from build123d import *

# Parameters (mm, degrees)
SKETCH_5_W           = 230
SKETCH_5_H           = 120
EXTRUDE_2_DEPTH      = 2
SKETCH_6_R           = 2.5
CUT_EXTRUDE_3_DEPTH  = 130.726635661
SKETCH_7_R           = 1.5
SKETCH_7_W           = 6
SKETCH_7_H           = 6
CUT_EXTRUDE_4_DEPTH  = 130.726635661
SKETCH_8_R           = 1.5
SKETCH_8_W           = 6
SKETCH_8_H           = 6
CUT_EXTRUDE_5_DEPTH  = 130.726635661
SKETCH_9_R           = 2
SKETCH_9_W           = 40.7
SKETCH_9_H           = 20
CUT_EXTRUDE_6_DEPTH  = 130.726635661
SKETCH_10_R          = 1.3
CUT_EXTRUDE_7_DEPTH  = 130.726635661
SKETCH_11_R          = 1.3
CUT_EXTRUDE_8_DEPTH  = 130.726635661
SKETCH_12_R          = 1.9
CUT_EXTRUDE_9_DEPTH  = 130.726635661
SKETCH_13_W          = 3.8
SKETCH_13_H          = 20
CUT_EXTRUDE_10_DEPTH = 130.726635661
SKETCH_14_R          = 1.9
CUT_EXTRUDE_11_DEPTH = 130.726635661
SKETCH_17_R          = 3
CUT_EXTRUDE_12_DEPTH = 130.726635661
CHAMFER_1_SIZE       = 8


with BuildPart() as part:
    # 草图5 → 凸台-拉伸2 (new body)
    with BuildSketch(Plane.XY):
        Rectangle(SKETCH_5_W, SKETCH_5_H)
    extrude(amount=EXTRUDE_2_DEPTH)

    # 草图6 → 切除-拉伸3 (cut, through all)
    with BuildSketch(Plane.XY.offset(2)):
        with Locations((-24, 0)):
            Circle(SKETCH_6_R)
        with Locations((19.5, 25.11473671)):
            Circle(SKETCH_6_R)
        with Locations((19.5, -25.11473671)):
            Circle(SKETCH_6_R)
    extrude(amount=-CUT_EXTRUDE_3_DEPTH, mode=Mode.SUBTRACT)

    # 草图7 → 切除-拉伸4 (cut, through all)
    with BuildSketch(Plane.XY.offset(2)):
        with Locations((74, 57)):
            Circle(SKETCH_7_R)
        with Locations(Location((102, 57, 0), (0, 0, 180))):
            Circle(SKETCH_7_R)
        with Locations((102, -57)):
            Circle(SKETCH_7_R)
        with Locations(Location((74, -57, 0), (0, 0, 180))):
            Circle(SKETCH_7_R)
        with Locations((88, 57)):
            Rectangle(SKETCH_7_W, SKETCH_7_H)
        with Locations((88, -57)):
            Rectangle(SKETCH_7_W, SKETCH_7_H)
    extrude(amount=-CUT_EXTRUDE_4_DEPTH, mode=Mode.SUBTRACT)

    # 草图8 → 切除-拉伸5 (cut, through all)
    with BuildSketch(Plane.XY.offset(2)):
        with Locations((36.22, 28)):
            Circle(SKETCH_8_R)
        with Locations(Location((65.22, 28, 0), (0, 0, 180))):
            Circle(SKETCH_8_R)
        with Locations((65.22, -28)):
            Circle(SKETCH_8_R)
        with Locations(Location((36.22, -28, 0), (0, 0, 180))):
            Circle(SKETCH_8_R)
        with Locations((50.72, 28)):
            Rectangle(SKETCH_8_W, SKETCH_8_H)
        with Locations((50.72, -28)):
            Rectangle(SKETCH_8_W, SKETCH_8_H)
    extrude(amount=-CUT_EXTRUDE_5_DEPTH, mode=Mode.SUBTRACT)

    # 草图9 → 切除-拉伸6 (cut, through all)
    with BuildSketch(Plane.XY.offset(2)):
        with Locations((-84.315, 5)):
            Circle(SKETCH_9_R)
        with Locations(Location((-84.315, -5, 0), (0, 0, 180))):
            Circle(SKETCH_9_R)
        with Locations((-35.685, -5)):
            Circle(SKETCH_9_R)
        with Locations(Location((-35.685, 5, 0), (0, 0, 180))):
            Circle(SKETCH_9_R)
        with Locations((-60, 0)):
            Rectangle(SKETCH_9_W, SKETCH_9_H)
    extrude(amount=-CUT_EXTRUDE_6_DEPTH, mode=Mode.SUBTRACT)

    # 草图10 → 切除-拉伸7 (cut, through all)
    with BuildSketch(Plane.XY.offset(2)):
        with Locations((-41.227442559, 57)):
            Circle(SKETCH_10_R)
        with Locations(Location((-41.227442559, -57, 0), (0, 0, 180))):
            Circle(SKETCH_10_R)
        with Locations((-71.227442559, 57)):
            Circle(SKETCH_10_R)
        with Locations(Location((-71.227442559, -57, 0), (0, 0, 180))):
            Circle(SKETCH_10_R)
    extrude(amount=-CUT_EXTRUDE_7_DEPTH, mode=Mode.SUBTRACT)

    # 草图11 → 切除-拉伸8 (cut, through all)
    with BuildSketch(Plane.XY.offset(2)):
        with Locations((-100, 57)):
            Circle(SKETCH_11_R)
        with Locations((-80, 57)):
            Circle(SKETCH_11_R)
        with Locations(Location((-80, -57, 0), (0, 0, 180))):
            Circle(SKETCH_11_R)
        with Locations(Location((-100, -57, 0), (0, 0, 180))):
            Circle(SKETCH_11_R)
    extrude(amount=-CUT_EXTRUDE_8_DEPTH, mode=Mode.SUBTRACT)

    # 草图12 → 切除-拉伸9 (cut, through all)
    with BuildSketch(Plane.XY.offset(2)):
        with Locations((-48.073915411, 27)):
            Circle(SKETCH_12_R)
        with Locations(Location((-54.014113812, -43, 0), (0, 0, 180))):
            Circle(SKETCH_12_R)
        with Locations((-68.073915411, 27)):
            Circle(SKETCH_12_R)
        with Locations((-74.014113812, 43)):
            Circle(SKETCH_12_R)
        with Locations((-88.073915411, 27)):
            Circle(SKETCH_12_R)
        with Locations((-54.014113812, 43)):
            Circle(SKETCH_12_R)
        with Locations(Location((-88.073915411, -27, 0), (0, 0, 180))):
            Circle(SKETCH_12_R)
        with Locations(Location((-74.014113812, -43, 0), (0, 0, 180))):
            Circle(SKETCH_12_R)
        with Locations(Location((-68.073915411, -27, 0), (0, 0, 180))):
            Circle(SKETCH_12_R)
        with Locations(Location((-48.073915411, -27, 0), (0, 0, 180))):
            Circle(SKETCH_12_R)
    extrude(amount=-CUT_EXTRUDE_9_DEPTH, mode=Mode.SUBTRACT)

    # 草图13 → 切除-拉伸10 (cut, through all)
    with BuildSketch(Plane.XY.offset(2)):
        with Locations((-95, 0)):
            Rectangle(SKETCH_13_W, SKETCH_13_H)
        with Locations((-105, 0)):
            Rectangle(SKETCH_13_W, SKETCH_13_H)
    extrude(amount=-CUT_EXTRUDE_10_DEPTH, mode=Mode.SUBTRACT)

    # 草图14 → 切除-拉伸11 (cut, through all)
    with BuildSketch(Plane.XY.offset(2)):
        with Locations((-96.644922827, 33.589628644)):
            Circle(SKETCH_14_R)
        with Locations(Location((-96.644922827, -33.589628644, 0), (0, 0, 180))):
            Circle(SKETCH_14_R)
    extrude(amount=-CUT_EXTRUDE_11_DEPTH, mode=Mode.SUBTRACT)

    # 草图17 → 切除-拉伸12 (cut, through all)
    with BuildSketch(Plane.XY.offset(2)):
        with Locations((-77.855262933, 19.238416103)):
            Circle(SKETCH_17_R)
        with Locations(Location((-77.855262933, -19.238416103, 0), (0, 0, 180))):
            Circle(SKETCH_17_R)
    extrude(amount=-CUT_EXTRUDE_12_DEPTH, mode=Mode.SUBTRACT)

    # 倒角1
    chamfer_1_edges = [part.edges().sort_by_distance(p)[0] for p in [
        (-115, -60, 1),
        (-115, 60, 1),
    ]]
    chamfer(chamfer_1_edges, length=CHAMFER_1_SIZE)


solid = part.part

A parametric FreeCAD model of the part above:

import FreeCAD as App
import Part
import Sketcher

V = App.Vector
Q = App.Units.Quantity


def edges_at(feature, points):
    """Names of the edges that pass closest to the given points."""
    edges = feature.Shape.Edges
    near = lambda p: min(range(len(edges)), key=lambda i: edges[i].distToShape(Part.Vertex(*p))[0])
    return sorted({f"Edge{near(p) + 1}" for p in points})


def add_polygon(sketch, points):
    """Adds a closed chain of lines whose ends are joined by coincident constraints."""
    first, n = sketch.GeometryCount, len(points)
    for a, b in zip(points, points[1:] + points[:1]):
        sketch.addGeometry(Part.LineSegment(App.Vector(*a, 0), App.Vector(*b, 0)), False)
    for i in range(n):
        sketch.addConstraint(Sketcher.Constraint("Coincident", first + i, 2, first + (i + 1) % n, 1))

doc = App.newDocument("Part")
params = doc.addObject("Spreadsheet::Sheet", "Params")
for row, (alias, value) in enumerate([
    ("sketch1_width", "230 mm"),
    ("sketch1_height", "120 mm"),
    ("pad1_length", "2 mm"),
    ("sketch2_diameter", "5 mm"),
    ("sketch3_diameter", "3 mm"),
    ("sketch3_width", "6 mm"),
    ("sketch4_diameter", "3 mm"),
    ("sketch4_width", "6 mm"),
    ("sketch5_diameter", "4 mm"),
    ("sketch5_height", "20 mm"),
    ("sketch5_width", "40.7 mm"),
    ("sketch6_diameter", "2.6 mm"),
    ("sketch7_diameter", "2.6 mm"),
    ("sketch8_diameter", "3.8 mm"),
    ("sketch9_height", "20 mm"),
    ("sketch9_width", "3.8 mm"),
    ("sketch10_diameter", "3.8 mm"),
    ("sketch11_diameter", "6 mm"),
    ("chamfer_size", "8 mm"),
], start=1):
    params.set(f"A{row}", alias)
    params.set(f"B{row}", "=" + value)
    params.setAlias(f"B{row}", alias)

body = doc.addObject("PartDesign::Body", "Body")

sketch1 = body.newObject("Sketcher::SketchObject", "Sketch")
sketch1.AttachmentSupport = (doc.getObject("XY_Plane"), [""])
sketch1.MapMode = "FlatFace"
add_polygon(sketch1, [(-115, 60), (-115, -60), (115, -60), (115, 60)])
sketch1.addConstraint(Sketcher.Constraint("Vertical", 0))
sketch1.addConstraint(Sketcher.Constraint("Horizontal", 1))
sketch1.addConstraint(Sketcher.Constraint("Vertical", 2))
sketch1.addConstraint(Sketcher.Constraint("Horizontal", 3))
sketch1.addConstraint(Sketcher.Constraint("Symmetric", 0, 2, 2, 2, -1, 1))
sketch1.addConstraint(Sketcher.Constraint("DistanceX", 1, 1, 1, 2, Q("230 mm")))
sketch1.addConstraint(Sketcher.Constraint("DistanceY", 0, 2, 0, 1, Q("120 mm")))
sketch1.setExpression("Constraints[9]", "Params.sketch1_width")
sketch1.setExpression("Constraints[10]", "Params.sketch1_height")
pad1 = body.newObject("PartDesign::Pad", "Pad")
pad1.Profile = sketch1
pad1.setExpression("Length", "Params.pad1_length")

sketch2 = body.newObject("Sketcher::SketchObject", "Sketch001")
sketch2.AttachmentSupport = (doc.getObject("XY_Plane"), [""])
sketch2.MapMode = "FlatFace"
sketch2.AttachmentOffset = App.Placement(V(0, 0, 2), App.Rotation())
sketch2.addGeometry(Part.Circle(V(-24, 0, 0), V(0, 0, 1), 2.5), False)
sketch2.addGeometry(Part.Circle(V(19.5, 25.1, 0), V(0, 0, 1), 2.5), False)
sketch2.addGeometry(Part.Circle(V(19.5, -25.1, 0), V(0, 0, 1), 2.5), False)
sketch2.addConstraint(Sketcher.Constraint("Equal", 0, 1))
sketch2.addConstraint(Sketcher.Constraint("Equal", 1, 2))
sketch2.addConstraint(Sketcher.Constraint("Symmetric", 1, 3, 2, 3, -1))
sketch2.addConstraint(Sketcher.Constraint("PointOnObject", 0, 3, -1))
sketch2.addConstraint(Sketcher.Constraint("Diameter", 0, Q("5 mm")))
sketch2.addConstraint(Sketcher.Constraint("DistanceX", 0, 3, -1, 1, Q("24 mm")))
sketch2.addConstraint(Sketcher.Constraint("DistanceX", -1, 1, 1, 3, Q("19.5 mm")))
sketch2.addConstraint(Sketcher.Constraint("DistanceY", -1, 1, 1, 3, Q("25.114737 mm")))
sketch2.setExpression("Constraints[4]", "Params.sketch2_diameter")
pocket1 = body.newObject("PartDesign::Pocket", "Pocket")
pocket1.Profile = sketch2
pocket1.Type = "ThroughAll"

sketch3 = body.newObject("Sketcher::SketchObject", "Sketch002")
sketch3.AttachmentSupport = (doc.getObject("XY_Plane"), [""])
sketch3.MapMode = "FlatFace"
sketch3.AttachmentOffset = App.Placement(V(0, 0, 2), App.Rotation())
sketch3.addGeometry(Part.Circle(V(74, 57, 0), V(0, 0, 1), 1.5), False)
sketch3.addGeometry(Part.Circle(V(102, 57, 0), V(0, 0, 1), 1.5), False)
sketch3.addGeometry(Part.Circle(V(102, -57, 0), V(0, 0, 1), 1.5), False)
sketch3.addGeometry(Part.Circle(V(74, -57, 0), V(0, 0, 1), 1.5), False)
add_polygon(sketch3, [(85, 60), (85, 54), (91, 54), (91, 60)])
add_polygon(sketch3, [(85, -54), (85, -60), (91, -60), (91, -54)])
sketch3.addConstraint(Sketcher.Constraint("Vertical", 4))
sketch3.addConstraint(Sketcher.Constraint("Horizontal", 5))
sketch3.addConstraint(Sketcher.Constraint("Vertical", 6))
sketch3.addConstraint(Sketcher.Constraint("Horizontal", 7))
sketch3.addConstraint(Sketcher.Constraint("Vertical", 8))
sketch3.addConstraint(Sketcher.Constraint("Horizontal", 9))
sketch3.addConstraint(Sketcher.Constraint("Vertical", 10))
sketch3.addConstraint(Sketcher.Constraint("Horizontal", 11))
sketch3.addConstraint(Sketcher.Constraint("Equal", 0, 1))
sketch3.addConstraint(Sketcher.Constraint("Equal", 1, 2))
sketch3.addConstraint(Sketcher.Constraint("Equal", 2, 3))
sketch3.addConstraint(Sketcher.Constraint("Symmetric", 1, 3, 2, 3, -1))
sketch3.addConstraint(Sketcher.Constraint("Symmetric", 0, 3, 3, 3, -1))
sketch3.addConstraint(Sketcher.Constraint("Symmetric", 7, 2, 8, 2, -1))
sketch3.addConstraint(Sketcher.Constraint("Symmetric", 5, 2, 10, 2, -1))
sketch3.addConstraint(Sketcher.Constraint("Horizontal", 0, 3, 1, 3))
sketch3.addConstraint(Sketcher.Constraint("Equal", 11, 4))
sketch3.addConstraint(Sketcher.Constraint("Diameter", 0, Q("3 mm")))
sketch3.addConstraint(Sketcher.Constraint("DistanceX", 5, 1, 5, 2, Q("6 mm")))
sketch3.addConstraint(Sketcher.Constraint("DistanceX", -1, 1, 0, 3, Q("74 mm")))
sketch3.addConstraint(Sketcher.Constraint("DistanceY", -1, 1, 0, 3, Q("57 mm")))
sketch3.addConstraint(Sketcher.Constraint("DistanceX", -1, 1, 1, 3, Q("102 mm")))
sketch3.addConstraint(Sketcher.Constraint("DistanceX", -1, 1, 4, 2, Q("85 mm")))
sketch3.addConstraint(Sketcher.Constraint("DistanceY", -1, 1, 4, 2, Q("54 mm")))
sketch3.setExpression("Constraints[25]", "Params.sketch3_diameter")
sketch3.setExpression("Constraints[26]", "Params.sketch3_width")
pocket2 = body.newObject("PartDesign::Pocket", "Pocket001")
pocket2.Profile = sketch3
pocket2.Type = "ThroughAll"

sketch4 = body.newObject("Sketcher::SketchObject", "Sketch003")
sketch4.AttachmentSupport = (doc.getObject("XY_Plane"), [""])
sketch4.MapMode = "FlatFace"
sketch4.AttachmentOffset = App.Placement(V(0, 0, 2), App.Rotation())
sketch4.addGeometry(Part.Circle(V(36.2, 28, 0), V(0, 0, 1), 1.5), False)
sketch4.addGeometry(Part.Circle(V(65.2, 28, 0), V(0, 0, 1), 1.5), False)
sketch4.addGeometry(Part.Circle(V(65.2, -28, 0), V(0, 0, 1), 1.5), False)
sketch4.addGeometry(Part.Circle(V(36.2, -28, 0), V(0, 0, 1), 1.5), False)
add_polygon(sketch4, [(47.7, 31), (47.7, 25), (53.7, 25), (53.7, 31)])
add_polygon(sketch4, [(47.7, -25), (47.7, -31), (53.7, -31), (53.7, -25)])
sketch4.addConstraint(Sketcher.Constraint("Vertical", 4))
sketch4.addConstraint(Sketcher.Constraint("Horizontal", 5))
sketch4.addConstraint(Sketcher.Constraint("Vertical", 6))
sketch4.addConstraint(Sketcher.Constraint("Horizontal", 7))
sketch4.addConstraint(Sketcher.Constraint("Vertical", 8))
sketch4.addConstraint(Sketcher.Constraint("Horizontal", 9))
sketch4.addConstraint(Sketcher.Constraint("Vertical", 10))
sketch4.addConstraint(Sketcher.Constraint("Horizontal", 11))
sketch4.addConstraint(Sketcher.Constraint("Equal", 0, 1))
sketch4.addConstraint(Sketcher.Constraint("Equal", 1, 2))
sketch4.addConstraint(Sketcher.Constraint("Equal", 2, 3))
sketch4.addConstraint(Sketcher.Constraint("Symmetric", 1, 3, 2, 3, -1))
sketch4.addConstraint(Sketcher.Constraint("Symmetric", 0, 3, 3, 3, -1))
sketch4.addConstraint(Sketcher.Constraint("Symmetric", 7, 2, 8, 2, -1))
sketch4.addConstraint(Sketcher.Constraint("Symmetric", 5, 2, 10, 2, -1))
sketch4.addConstraint(Sketcher.Constraint("Horizontal", 0, 3, 1, 3))
sketch4.addConstraint(Sketcher.Constraint("Equal", 11, 4))
sketch4.addConstraint(Sketcher.Constraint("Diameter", 0, Q("3 mm")))
sketch4.addConstraint(Sketcher.Constraint("DistanceX", 5, 1, 5, 2, Q("6 mm")))
sketch4.addConstraint(Sketcher.Constraint("DistanceY", -1, 1, 0, 3, Q("28 mm")))
sketch4.addConstraint(Sketcher.Constraint("DistanceY", -1, 1, 4, 2, Q("25 mm")))
sketch4.addConstraint(Sketcher.Constraint("DistanceX", 0, 3, 1, 3, Q("29 mm")))
sketch4.addConstraint(Sketcher.Constraint("DistanceX", 0, 3, 4, 2, Q("11.5 mm")))
sketch4.addConstraint(Sketcher.Constraint("DistanceX", -1, 1, 0, 3, Q("36.22 mm")))
sketch4.setExpression("Constraints[25]", "Params.sketch4_diameter")
sketch4.setExpression("Constraints[26]", "Params.sketch4_width")
pocket3 = body.newObject("PartDesign::Pocket", "Pocket002")
pocket3.Profile = sketch4
pocket3.Type = "ThroughAll"

sketch5 = body.newObject("Sketcher::SketchObject", "Sketch004")
sketch5.AttachmentSupport = (doc.getObject("XY_Plane"), [""])
sketch5.MapMode = "FlatFace"
sketch5.AttachmentOffset = App.Placement(V(0, 0, 2), App.Rotation())
sketch5.addGeometry(Part.Circle(V(-84.3, 5, 0), V(0, 0, 1), 2), False)
sketch5.addGeometry(Part.Circle(V(-84.3, -5, 0), V(0, 0, 1), 2), False)
sketch5.addGeometry(Part.Circle(V(-35.7, -5, 0), V(0, 0, 1), 2), False)
sketch5.addGeometry(Part.Circle(V(-35.7, 5, 0), V(0, 0, 1), 2), False)
add_polygon(sketch5, [(-80.3, 10), (-80.3, -10), (-39.6, -10), (-39.6, 10)])
sketch5.addConstraint(Sketcher.Constraint("Vertical", 4))
sketch5.addConstraint(Sketcher.Constraint("Horizontal", 5))
sketch5.addConstraint(Sketcher.Constraint("Vertical", 6))
sketch5.addConstraint(Sketcher.Constraint("Horizontal", 7))
sketch5.addConstraint(Sketcher.Constraint("Equal", 0, 1))
sketch5.addConstraint(Sketcher.Constraint("Equal", 1, 2))
sketch5.addConstraint(Sketcher.Constraint("Equal", 2, 3))
sketch5.addConstraint(Sketcher.Constraint("Symmetric", 0, 3, 1, 3, -1))
sketch5.addConstraint(Sketcher.Constraint("Symmetric", 2, 3, 3, 3, -1))
sketch5.addConstraint(Sketcher.Constraint("Horizontal", 1, 3, 2, 3))
sketch5.addConstraint(Sketcher.Constraint("Diameter", 0, Q("4 mm")))
sketch5.addConstraint(Sketcher.Constraint("DistanceY", 4, 2, 4, 1, Q("20 mm")))
sketch5.addConstraint(Sketcher.Constraint("DistanceX", 5, 1, 5, 2, Q("40.7 mm")))
sketch5.addConstraint(Sketcher.Constraint("DistanceY", -1, 1, 0, 3, Q("5 mm")))
sketch5.addConstraint(Sketcher.Constraint("DistanceY", 4, 2, -1, 1, Q("10 mm")))
sketch5.addConstraint(Sketcher.Constraint("DistanceX", 4, 2, -1, 1, Q("80.35 mm")))
sketch5.addConstraint(Sketcher.Constraint("DistanceX", 1, 3, 2, 3, Q("48.63 mm")))
sketch5.addConstraint(Sketcher.Constraint("DistanceX", 0, 3, -1, 1, Q("84.315 mm")))
sketch5.setExpression("Constraints[14]", "Params.sketch5_diameter")
sketch5.setExpression("Constraints[15]", "Params.sketch5_height")
sketch5.setExpression("Constraints[16]", "Params.sketch5_width")
pocket4 = body.newObject("PartDesign::Pocket", "Pocket003")
pocket4.Profile = sketch5
pocket4.Type = "ThroughAll"

sketch6 = body.newObject("Sketcher::SketchObject", "Sketch005")
sketch6.AttachmentSupport = (doc.getObject("XY_Plane"), [""])
sketch6.MapMode = "FlatFace"
sketch6.AttachmentOffset = App.Placement(V(0, 0, 2), App.Rotation())
sketch6.addGeometry(Part.Circle(V(-41.2, 57, 0), V(0, 0, 1), 1.3), False)
sketch6.addGeometry(Part.Circle(V(-41.2, -57, 0), V(0, 0, 1), 1.3), False)
sketch6.addGeometry(Part.Circle(V(-71.2, 57, 0), V(0, 0, 1), 1.3), False)
sketch6.addGeometry(Part.Circle(V(-71.2, -57, 0), V(0, 0, 1), 1.3), False)
sketch6.addConstraint(Sketcher.Constraint("Equal", 0, 1))
sketch6.addConstraint(Sketcher.Constraint("Equal", 1, 2))
sketch6.addConstraint(Sketcher.Constraint("Equal", 2, 3))
sketch6.addConstraint(Sketcher.Constraint("Symmetric", 0, 3, 1, 3, -1))
sketch6.addConstraint(Sketcher.Constraint("Symmetric", 2, 3, 3, 3, -1))
sketch6.addConstraint(Sketcher.Constraint("Horizontal", 0, 3, 2, 3))
sketch6.addConstraint(Sketcher.Constraint("Diameter", 0, Q("2.6 mm")))
sketch6.addConstraint(Sketcher.Constraint("DistanceY", -1, 1, 0, 3, Q("57 mm")))
sketch6.addConstraint(Sketcher.Constraint("DistanceX", 2, 3, 0, 3, Q("30 mm")))
sketch6.addConstraint(Sketcher.Constraint("DistanceX", 0, 3, -1, 1, Q("41.227443 mm")))
sketch6.setExpression("Constraints[6]", "Params.sketch6_diameter")
pocket5 = body.newObject("PartDesign::Pocket", "Pocket004")
pocket5.Profile = sketch6
pocket5.Type = "ThroughAll"

sketch7 = body.newObject("Sketcher::SketchObject", "Sketch006")
sketch7.AttachmentSupport = (doc.getObject("XY_Plane"), [""])
sketch7.MapMode = "FlatFace"
sketch7.AttachmentOffset = App.Placement(V(0, 0, 2), App.Rotation())
sketch7.addGeometry(Part.Circle(V(-100, 57, 0), V(0, 0, 1), 1.3), False)
sketch7.addGeometry(Part.Circle(V(-80, 57, 0), V(0, 0, 1), 1.3), False)
sketch7.addGeometry(Part.Circle(V(-80, -57, 0), V(0, 0, 1), 1.3), False)
sketch7.addGeometry(Part.Circle(V(-100, -57, 0), V(0, 0, 1), 1.3), False)
sketch7.addConstraint(Sketcher.Constraint("Equal", 0, 1))
sketch7.addConstraint(Sketcher.Constraint("Equal", 1, 2))
sketch7.addConstraint(Sketcher.Constraint("Equal", 2, 3))
sketch7.addConstraint(Sketcher.Constraint("Symmetric", 1, 3, 2, 3, -1))
sketch7.addConstraint(Sketcher.Constraint("Symmetric", 0, 3, 3, 3, -1))
sketch7.addConstraint(Sketcher.Constraint("Horizontal", 0, 3, 1, 3))
sketch7.addConstraint(Sketcher.Constraint("Diameter", 0, Q("2.6 mm")))
sketch7.addConstraint(Sketcher.Constraint("DistanceX", 0, 3, -1, 1, Q("100 mm")))
sketch7.addConstraint(Sketcher.Constraint("DistanceY", -1, 1, 0, 3, Q("57 mm")))
sketch7.addConstraint(Sketcher.Constraint("DistanceX", 1, 3, -1, 1, Q("80 mm")))
sketch7.setExpression("Constraints[6]", "Params.sketch7_diameter")
pocket6 = body.newObject("PartDesign::Pocket", "Pocket005")
pocket6.Profile = sketch7
pocket6.Type = "ThroughAll"

sketch8 = body.newObject("Sketcher::SketchObject", "Sketch007")
sketch8.AttachmentSupport = (doc.getObject("XY_Plane"), [""])
sketch8.MapMode = "FlatFace"
sketch8.AttachmentOffset = App.Placement(V(0, 0, 2), App.Rotation())
sketch8.addGeometry(Part.Circle(V(-48.1, 27, 0), V(0, 0, 1), 1.9), False)
sketch8.addGeometry(Part.Circle(V(-54, -43, 0), V(0, 0, 1), 1.9), False)
sketch8.addGeometry(Part.Circle(V(-68.1, 27, 0), V(0, 0, 1), 1.9), False)
sketch8.addGeometry(Part.Circle(V(-74, 43, 0), V(0, 0, 1), 1.9), False)
sketch8.addGeometry(Part.Circle(V(-88.1, 27, 0), V(0, 0, 1), 1.9), False)
sketch8.addGeometry(Part.Circle(V(-54, 43, 0), V(0, 0, 1), 1.9), False)
sketch8.addGeometry(Part.Circle(V(-88.1, -27, 0), V(0, 0, 1), 1.9), False)
sketch8.addGeometry(Part.Circle(V(-74, -43, 0), V(0, 0, 1), 1.9), False)
sketch8.addGeometry(Part.Circle(V(-68.1, -27, 0), V(0, 0, 1), 1.9), False)
sketch8.addGeometry(Part.Circle(V(-48.1, -27, 0), V(0, 0, 1), 1.9), False)
sketch8.addConstraint(Sketcher.Constraint("Equal", 0, 1))
sketch8.addConstraint(Sketcher.Constraint("Equal", 1, 2))
sketch8.addConstraint(Sketcher.Constraint("Equal", 2, 3))
sketch8.addConstraint(Sketcher.Constraint("Equal", 3, 4))
sketch8.addConstraint(Sketcher.Constraint("Equal", 4, 5))
sketch8.addConstraint(Sketcher.Constraint("Equal", 5, 6))
sketch8.addConstraint(Sketcher.Constraint("Equal", 6, 7))
sketch8.addConstraint(Sketcher.Constraint("Equal", 7, 8))
sketch8.addConstraint(Sketcher.Constraint("Equal", 8, 9))
sketch8.addConstraint(Sketcher.Constraint("Symmetric", 1, 3, 5, 3, -1))
sketch8.addConstraint(Sketcher.Constraint("Symmetric", 4, 3, 6, 3, -1))
sketch8.addConstraint(Sketcher.Constraint("Symmetric", 3, 3, 7, 3, -1))
sketch8.addConstraint(Sketcher.Constraint("Symmetric", 2, 3, 8, 3, -1))
sketch8.addConstraint(Sketcher.Constraint("Symmetric", 0, 3, 9, 3, -1))
sketch8.addConstraint(Sketcher.Constraint("Horizontal", 0, 3, 2, 3))
sketch8.addConstraint(Sketcher.Constraint("Horizontal", 2, 3, 4, 3))
sketch8.addConstraint(Sketcher.Constraint("Horizontal", 3, 3, 5, 3))
sketch8.addConstraint(Sketcher.Constraint("Diameter", 0, Q("3.8 mm")))
sketch8.addConstraint(Sketcher.Constraint("DistanceY", -1, 1, 0, 3, Q("27 mm")))
sketch8.addConstraint(Sketcher.Constraint("DistanceY", 1, 3, -1, 1, Q("43 mm")))
sketch8.addConstraint(Sketcher.Constraint("DistanceX", 2, 3, 0, 3, Q("20 mm")))
sketch8.addConstraint(Sketcher.Constraint("DistanceX", 3, 3, 1, 3, Q("20 mm")))
sketch8.addConstraint(Sketcher.Constraint("DistanceX", 4, 3, 2, 3, Q("20 mm")))
sketch8.addConstraint(Sketcher.Constraint("DistanceX", 1, 3, 0, 3, Q("5.940198 mm")))
sketch8.addConstraint(Sketcher.Constraint("DistanceX", 0, 3, -1, 1, Q("48.073915 mm")))
sketch8.setExpression("Constraints[17]", "Params.sketch8_diameter")
pocket7 = body.newObject("PartDesign::Pocket", "Pocket006")
pocket7.Profile = sketch8
pocket7.Type = "ThroughAll"

sketch9 = body.newObject("Sketcher::SketchObject", "Sketch008")
sketch9.AttachmentSupport = (doc.getObject("XY_Plane"), [""])
sketch9.MapMode = "FlatFace"
sketch9.AttachmentOffset = App.Placement(V(0, 0, 2), App.Rotation())
add_polygon(sketch9, [(-96.9, 10), (-96.9, -10), (-93.1, -10), (-93.1, 10)])
add_polygon(sketch9, [(-106.9, 10), (-106.9, -10), (-103.1, -10), (-103.1, 10)])
sketch9.addConstraint(Sketcher.Constraint("Vertical", 0))
sketch9.addConstraint(Sketcher.Constraint("Horizontal", 1))
sketch9.addConstraint(Sketcher.Constraint("Vertical", 2))
sketch9.addConstraint(Sketcher.Constraint("Horizontal", 3))
sketch9.addConstraint(Sketcher.Constraint("Vertical", 4))
sketch9.addConstraint(Sketcher.Constraint("Horizontal", 5))
sketch9.addConstraint(Sketcher.Constraint("Vertical", 6))
sketch9.addConstraint(Sketcher.Constraint("Horizontal", 7))
sketch9.addConstraint(Sketcher.Constraint("Horizontal", 1, 2, 4, 2))
sketch9.addConstraint(Sketcher.Constraint("Horizontal", 3, 2, 6, 2))
sketch9.addConstraint(Sketcher.Constraint("Equal", 3, 5))
sketch9.addConstraint(Sketcher.Constraint("DistanceY", 0, 2, 0, 1, Q("20 mm")))
sketch9.addConstraint(Sketcher.Constraint("DistanceX", 1, 1, 1, 2, Q("3.8 mm")))
sketch9.addConstraint(Sketcher.Constraint("DistanceY", 0, 2, -1, 1, Q("10 mm")))
sketch9.addConstraint(Sketcher.Constraint("DistanceX", 4, 2, 0, 2, Q("10 mm")))
sketch9.addConstraint(Sketcher.Constraint("DistanceX", 0, 2, -1, 1, Q("96.9 mm")))
sketch9.setExpression("Constraints[19]", "Params.sketch9_height")
sketch9.setExpression("Constraints[20]", "Params.sketch9_width")
pocket8 = body.newObject("PartDesign::Pocket", "Pocket007")
pocket8.Profile = sketch9
pocket8.Type = "ThroughAll"

sketch10 = body.newObject("Sketcher::SketchObject", "Sketch009")
sketch10.AttachmentSupport = (doc.getObject("XY_Plane"), [""])
sketch10.MapMode = "FlatFace"
sketch10.AttachmentOffset = App.Placement(V(0, 0, 2), App.Rotation())
sketch10.addGeometry(Part.Circle(V(-96.6, 33.6, 0), V(0, 0, 1), 1.9), False)
sketch10.addGeometry(Part.Circle(V(-96.6, -33.6, 0), V(0, 0, 1), 1.9), False)
sketch10.addConstraint(Sketcher.Constraint("Equal", 0, 1))
sketch10.addConstraint(Sketcher.Constraint("Symmetric", 0, 3, 1, 3, -1))
sketch10.addConstraint(Sketcher.Constraint("Diameter", 0, Q("3.8 mm")))
sketch10.addConstraint(Sketcher.Constraint("DistanceY", -1, 1, 0, 3, Q("33.589629 mm")))
sketch10.addConstraint(Sketcher.Constraint("DistanceX", 0, 3, -1, 1, Q("96.644923 mm")))
sketch10.setExpression("Constraints[2]", "Params.sketch10_diameter")
pocket9 = body.newObject("PartDesign::Pocket", "Pocket008")
pocket9.Profile = sketch10
pocket9.Type = "ThroughAll"

sketch11 = body.newObject("Sketcher::SketchObject", "Sketch010")
sketch11.AttachmentSupport = (doc.getObject("XY_Plane"), [""])
sketch11.MapMode = "FlatFace"
sketch11.AttachmentOffset = App.Placement(V(0, 0, 2), App.Rotation())
sketch11.addGeometry(Part.Circle(V(-77.9, 19.2, 0), V(0, 0, 1), 3), False)
sketch11.addGeometry(Part.Circle(V(-77.9, -19.2, 0), V(0, 0, 1), 3), False)
sketch11.addConstraint(Sketcher.Constraint("Equal", 0, 1))
sketch11.addConstraint(Sketcher.Constraint("Symmetric", 0, 3, 1, 3, -1))
sketch11.addConstraint(Sketcher.Constraint("Diameter", 0, Q("6 mm")))
sketch11.addConstraint(Sketcher.Constraint("DistanceX", 0, 3, -1, 1, Q("77.855263 mm")))
sketch11.addConstraint(Sketcher.Constraint("DistanceY", -1, 1, 0, 3, Q("19.238416 mm")))
sketch11.setExpression("Constraints[2]", "Params.sketch11_diameter")
pocket10 = body.newObject("PartDesign::Pocket", "Pocket009")
pocket10.Profile = sketch11
pocket10.Type = "ThroughAll"
doc.recompute()

chamfer = body.newObject("PartDesign::Chamfer", "Chamfer")
chamfer.Base = (pocket10, edges_at(pocket10, [(-115, -60, 1), (-115, 60, 1)]))
chamfer.setExpression("Size", "Params.chamfer_size")

doc.recompute()
